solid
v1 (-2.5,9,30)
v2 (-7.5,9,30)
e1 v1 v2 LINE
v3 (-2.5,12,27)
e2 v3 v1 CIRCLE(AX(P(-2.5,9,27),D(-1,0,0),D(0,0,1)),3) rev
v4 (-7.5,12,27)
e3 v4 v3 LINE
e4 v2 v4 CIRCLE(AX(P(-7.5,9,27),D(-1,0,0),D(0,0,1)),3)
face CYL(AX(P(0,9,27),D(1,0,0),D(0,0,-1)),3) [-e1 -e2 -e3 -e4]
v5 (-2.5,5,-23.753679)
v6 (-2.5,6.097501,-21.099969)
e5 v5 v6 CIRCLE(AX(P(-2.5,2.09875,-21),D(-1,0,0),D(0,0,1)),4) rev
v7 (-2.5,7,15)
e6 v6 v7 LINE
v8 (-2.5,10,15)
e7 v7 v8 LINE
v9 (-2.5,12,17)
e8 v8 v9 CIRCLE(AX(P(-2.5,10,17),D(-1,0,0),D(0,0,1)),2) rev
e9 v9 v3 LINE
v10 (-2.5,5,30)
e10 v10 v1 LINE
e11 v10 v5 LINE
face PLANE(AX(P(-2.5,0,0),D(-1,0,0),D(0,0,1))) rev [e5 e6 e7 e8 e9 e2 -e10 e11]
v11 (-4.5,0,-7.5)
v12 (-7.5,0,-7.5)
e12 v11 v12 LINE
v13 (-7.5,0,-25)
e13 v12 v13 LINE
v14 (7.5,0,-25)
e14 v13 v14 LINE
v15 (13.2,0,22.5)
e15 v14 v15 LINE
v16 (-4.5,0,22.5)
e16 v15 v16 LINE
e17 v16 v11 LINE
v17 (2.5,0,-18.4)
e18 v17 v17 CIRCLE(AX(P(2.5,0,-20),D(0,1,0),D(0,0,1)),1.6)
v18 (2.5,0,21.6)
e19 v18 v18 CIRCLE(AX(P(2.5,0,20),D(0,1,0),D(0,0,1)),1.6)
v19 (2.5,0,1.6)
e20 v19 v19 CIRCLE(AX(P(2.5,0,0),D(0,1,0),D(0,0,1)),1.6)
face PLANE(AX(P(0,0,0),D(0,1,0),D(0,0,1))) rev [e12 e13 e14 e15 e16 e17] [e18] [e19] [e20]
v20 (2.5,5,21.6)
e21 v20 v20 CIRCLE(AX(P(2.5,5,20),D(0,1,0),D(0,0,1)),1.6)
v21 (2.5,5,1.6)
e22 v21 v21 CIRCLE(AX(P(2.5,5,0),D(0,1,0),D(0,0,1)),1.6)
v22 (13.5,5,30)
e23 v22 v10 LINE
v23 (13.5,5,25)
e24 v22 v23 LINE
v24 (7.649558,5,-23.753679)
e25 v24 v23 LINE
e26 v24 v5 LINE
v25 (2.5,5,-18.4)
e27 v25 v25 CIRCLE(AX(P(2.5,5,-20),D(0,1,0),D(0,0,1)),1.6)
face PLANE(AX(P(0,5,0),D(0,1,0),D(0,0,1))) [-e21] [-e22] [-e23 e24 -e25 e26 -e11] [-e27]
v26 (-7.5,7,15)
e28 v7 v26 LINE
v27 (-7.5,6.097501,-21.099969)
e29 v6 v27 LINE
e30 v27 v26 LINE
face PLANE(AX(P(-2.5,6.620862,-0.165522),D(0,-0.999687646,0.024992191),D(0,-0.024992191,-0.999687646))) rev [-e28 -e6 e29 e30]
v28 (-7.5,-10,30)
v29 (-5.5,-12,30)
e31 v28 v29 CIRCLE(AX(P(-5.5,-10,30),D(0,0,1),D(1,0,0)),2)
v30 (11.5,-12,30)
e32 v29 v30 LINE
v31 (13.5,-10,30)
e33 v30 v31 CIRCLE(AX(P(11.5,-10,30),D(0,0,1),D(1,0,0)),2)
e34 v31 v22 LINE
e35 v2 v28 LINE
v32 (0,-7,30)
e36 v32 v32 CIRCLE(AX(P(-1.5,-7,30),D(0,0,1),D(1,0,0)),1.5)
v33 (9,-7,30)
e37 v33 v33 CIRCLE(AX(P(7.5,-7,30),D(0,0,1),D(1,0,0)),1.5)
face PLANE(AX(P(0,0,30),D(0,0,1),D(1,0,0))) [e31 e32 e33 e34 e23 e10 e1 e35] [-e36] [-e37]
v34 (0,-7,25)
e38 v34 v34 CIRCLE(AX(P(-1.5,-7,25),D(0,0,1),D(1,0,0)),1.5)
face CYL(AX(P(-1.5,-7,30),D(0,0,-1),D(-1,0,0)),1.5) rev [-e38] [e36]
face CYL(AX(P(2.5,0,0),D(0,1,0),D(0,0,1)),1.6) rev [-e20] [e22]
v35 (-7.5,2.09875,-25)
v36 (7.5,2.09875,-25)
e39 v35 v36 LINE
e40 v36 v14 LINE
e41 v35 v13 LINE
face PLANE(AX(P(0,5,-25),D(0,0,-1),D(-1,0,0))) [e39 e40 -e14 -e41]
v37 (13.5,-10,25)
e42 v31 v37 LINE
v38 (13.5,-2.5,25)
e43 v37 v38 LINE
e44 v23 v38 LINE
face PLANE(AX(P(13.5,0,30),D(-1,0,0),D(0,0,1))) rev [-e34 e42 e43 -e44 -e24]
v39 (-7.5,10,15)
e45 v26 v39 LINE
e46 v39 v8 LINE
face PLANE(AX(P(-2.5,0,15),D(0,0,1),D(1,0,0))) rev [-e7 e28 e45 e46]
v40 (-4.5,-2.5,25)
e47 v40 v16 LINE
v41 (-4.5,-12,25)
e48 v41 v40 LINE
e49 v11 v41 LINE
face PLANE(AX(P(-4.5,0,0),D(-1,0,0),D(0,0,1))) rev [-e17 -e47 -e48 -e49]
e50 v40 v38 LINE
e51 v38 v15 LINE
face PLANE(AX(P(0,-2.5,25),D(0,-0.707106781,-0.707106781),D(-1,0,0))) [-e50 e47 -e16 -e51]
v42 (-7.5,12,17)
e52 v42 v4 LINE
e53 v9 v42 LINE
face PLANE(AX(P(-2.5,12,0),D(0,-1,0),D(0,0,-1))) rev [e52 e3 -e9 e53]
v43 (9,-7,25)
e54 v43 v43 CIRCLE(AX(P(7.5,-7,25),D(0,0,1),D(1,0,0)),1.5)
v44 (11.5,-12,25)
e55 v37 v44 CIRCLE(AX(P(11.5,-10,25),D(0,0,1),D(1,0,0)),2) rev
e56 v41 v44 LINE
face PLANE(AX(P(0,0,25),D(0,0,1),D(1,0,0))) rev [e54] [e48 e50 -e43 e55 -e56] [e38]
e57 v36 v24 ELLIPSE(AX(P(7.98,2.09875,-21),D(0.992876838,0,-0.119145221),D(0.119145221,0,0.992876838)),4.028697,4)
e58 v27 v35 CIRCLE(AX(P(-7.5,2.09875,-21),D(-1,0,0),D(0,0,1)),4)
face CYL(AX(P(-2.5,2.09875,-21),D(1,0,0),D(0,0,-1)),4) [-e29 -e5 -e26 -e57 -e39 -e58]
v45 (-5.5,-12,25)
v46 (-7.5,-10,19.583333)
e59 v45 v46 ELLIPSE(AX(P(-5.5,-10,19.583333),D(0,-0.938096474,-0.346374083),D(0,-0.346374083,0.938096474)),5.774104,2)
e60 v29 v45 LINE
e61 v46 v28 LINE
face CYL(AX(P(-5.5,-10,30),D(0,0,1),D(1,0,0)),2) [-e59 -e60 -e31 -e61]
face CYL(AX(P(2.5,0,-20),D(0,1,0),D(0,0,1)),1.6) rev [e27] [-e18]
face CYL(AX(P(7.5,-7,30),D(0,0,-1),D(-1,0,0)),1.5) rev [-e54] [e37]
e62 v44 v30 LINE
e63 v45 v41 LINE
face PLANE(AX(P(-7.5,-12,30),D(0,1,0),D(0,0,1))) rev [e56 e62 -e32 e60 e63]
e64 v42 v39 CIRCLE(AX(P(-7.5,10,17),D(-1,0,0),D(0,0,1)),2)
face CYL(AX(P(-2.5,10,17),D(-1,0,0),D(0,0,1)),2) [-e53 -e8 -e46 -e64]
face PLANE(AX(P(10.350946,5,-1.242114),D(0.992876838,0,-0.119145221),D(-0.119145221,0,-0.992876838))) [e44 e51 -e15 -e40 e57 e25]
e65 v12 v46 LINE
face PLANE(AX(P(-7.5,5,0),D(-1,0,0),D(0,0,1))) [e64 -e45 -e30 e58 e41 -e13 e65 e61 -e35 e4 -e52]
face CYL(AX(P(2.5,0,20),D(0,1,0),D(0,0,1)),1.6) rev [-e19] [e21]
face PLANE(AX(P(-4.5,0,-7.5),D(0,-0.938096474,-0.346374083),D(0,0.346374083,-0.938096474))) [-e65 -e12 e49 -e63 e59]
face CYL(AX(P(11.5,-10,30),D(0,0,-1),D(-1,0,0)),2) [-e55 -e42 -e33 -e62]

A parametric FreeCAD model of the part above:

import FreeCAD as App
import Part
import Sketcher
from FreeCAD import Vector
Q = App.Units.Quantity


def edges_at(feature, points):
    """Names of the edges that pass closest to the given points."""
    edges = feature.Shape.Edges
    near = lambda p: min(range(len(edges)), key=lambda i: edges[i].distToShape(Part.Vertex(*p))[0])
    return sorted({f"Edge{near(p) + 1}" for p in points})

doc = App.newDocument("Part")
params = doc.addObject("Spreadsheet::Sheet", "Params")
for row, (alias, value) in enumerate([
    ("sketch1_width", "21 mm"),
    ("sketch1_width2", "15 mm"),
    ("sketch1_height", "50 mm"),
    ("pad1_length", "5 mm"),
    ("sketch2_width", "1 mm"),
    ("sketch2_width2", "7 mm"),
    ("sketch2_width3", "5 mm"),
    ("sketch2_height", "50 mm"),
    ("sketch2_height2", "10 mm"),
    ("pad2_length", "5 mm"),
    ("fillet_radius", "4 mm"),
    ("fillet2_radius", "2 mm"),
    ("sketch3_diameter", "3.2 mm"),
    ("pocket1_length", "5 mm"),
    ("sketch4_diameter", "3 mm"),
    ("sketch4_width", "16 mm"),
    ("sketch4_width2", "5 mm"),
    ("sketch4_height", "7 mm"),
    ("sketch4_height2", "24 mm"),
    ("pad3_length", "5 mm"),
    ("chamfer_size", "2.5 mm"),
    ("fillet3_radius", "3 mm"),
    ("sketch5_height", "30 mm"),
    ("sketch5_width", "9.5 mm"),
    ("pad4_length", "3 mm"),
    ("fillet4_radius", "2 mm"),
], start=1):
    params.set(f"A{row}", alias)
    params.set(f"B{row}", "=" + value)
    params.setAlias(f"B{row}", alias)

body = doc.addObject("PartDesign::Body", "Body")

# Sketch on XZ plane
sketch1 = body.newObject("Sketcher::SketchObject", "Sketch")
sketch1.AttachmentSupport = (doc.getObject("XZ_Plane"), [""])
sketch1.MapMode = "FlatFace"
sketch1.addGeometry(Part.LineSegment(Vector(-7.5, -25, 0), Vector(-7.5, 25, 0)), False)
sketch1.addGeometry(Part.LineSegment(Vector(-7.5, 25, 0), Vector(13.5, 25, 0)), False)
sketch1.addGeometry(Part.LineSegment(Vector(13.5, 25, 0), Vector(7.5, -25, 0)), False)
sketch1.addGeometry(Part.LineSegment(Vector(7.5, -25, 0), Vector(-7.5, -25, 0)), False)
sketch1.addConstraint(Sketcher.Constraint("Coincident", 0, 2, 1, 1))
sketch1.addConstraint(Sketcher.Constraint("Coincident", 1, 2, 2, 1))
sketch1.addConstraint(Sketcher.Constraint("Coincident", 2, 2, 3, 1))
sketch1.addConstraint(Sketcher.Constraint("Coincident", 3, 2, 0, 1))
sketch1.addConstraint(Sketcher.Constraint("Vertical", 0))
sketch1.addConstraint(Sketcher.Constraint("Horizontal", 1))
sketch1.addConstraint(Sketcher.Constraint("Horizontal", 3))
sketch1.addConstraint(Sketcher.Constraint("Symmetric", 0, 2, 2, 2, -1, 1))
sketch1.addConstraint(Sketcher.Constraint("DistanceX", 1, 1, 1, 2, 21.0))
sketch1.addConstraint(Sketcher.Constraint("DistanceX", 3, 2, 3, 1, 15.0))
sketch1.addConstraint(Sketcher.Constraint("DistanceY", 0, 1, 0, 2, 50.0))
sketch1.setExpression("Constraints[8]", "Params.sketch1_width")
sketch1.setExpression("Constraints[9]", "Params.sketch1_width2")
sketch1.setExpression("Constraints[10]", "Params.sketch1_height")
pad1 = body.newObject("PartDesign::Pad", "Pad")
pad1.Profile = sketch1
pad1.setExpression("Length", "Params.pad1_length")
pad1.Reversed = True

# Sketch on YZ plane
sketch2 = body.newObject("Sketcher::SketchObject", "Sketch001")
sketch2.AttachmentSupport = (doc.getObject("YZ_Plane"), [""])
sketch2.MapMode = "FlatFace"
sketch2.AttachmentOffset = App.Placement(Vector(0, 0, -7.5), App.Rotation())
sketch2.addGeometry(Part.LineSegment(Vector(6, -25, 0), Vector(5, -25, 0)), False)
sketch2.addGeometry(Part.LineSegment(Vector(5, -25, 0), Vector(5, 25, 0)), False)
sketch2.addGeometry(Part.LineSegment(Vector(5, 25, 0), Vector(12, 25, 0)), False)
sketch2.addGeometry(Part.LineSegment(Vector(12, 25, 0), Vector(12, 15, 0)), False)
sketch2.addGeometry(Part.LineSegment(Vector(12, 15, 0), Vector(7, 15, 0)), False)
sketch2.addGeometry(Part.LineSegment(Vector(7, 15, 0), Vector(6, -25, 0)), False)
sketch2.addConstraint(Sketcher.Constraint("Coincident", 0, 2, 1, 1))
sketch2.addConstraint(Sketcher.Constraint("Coincident", 1, 2, 2, 1))
sketch2.addConstraint(Sketcher.Constraint("Coincident", 2, 2, 3, 1))
sketch2.addConstraint(Sketcher.Constraint("Coincident", 3, 2, 4, 1))
sketch2.addConstraint(Sketcher.Constraint("Coincident", 4, 2, 5, 1))
sketch2.addConstraint(Sketcher.Constraint("Coincident", 5, 2, 0, 1))
sketch2.addConstraint(Sketcher.Constraint("Horizontal", 0))
sketch2.addConstraint(Sketcher.Constraint("Vertical", 1))
sketch2.addConstraint(Sketcher.Constraint("Horizontal", 2))
sketch2.addConstraint(Sketcher.Constraint("Vertical", 3))
sketch2.addConstraint(Sketcher.Constraint("Horizontal", 4))
sketch2.addConstraint(Sketcher.Constraint("DistanceX", 0, 2, 0, 1, 1.0))
sketch2.addConstraint(Sketcher.Constraint("DistanceX", 2, 1, 2, 2, 7.0))
sketch2.addConstraint(Sketcher.Constraint("DistanceX", 4, 2, 4, 1, 5.0))
sketch2.addConstraint(Sketcher.Constraint("DistanceY", 1, 1, 1, 2, 50.0))
sketch2.addConstraint(Sketcher.Constraint("DistanceY", 3, 2, 3, 1, 10.0))
sketch2.addConstraint(Sketcher.Constraint("DistanceX", -1, 1, 0, 2, 5.0))
sketch2.addConstraint(Sketcher.Constraint("DistanceY", 0, 2, -1, 1, 25.0))
sketch2.setExpression("Constraints[11]", "Params.sketch2_width")
sketch2.setExpression("Constraints[12]", "Params.sketch2_width2")
sketch2.setExpression("Constraints[13]", "Params.sketch2_width3")
sketch2.setExpression("Constraints[14]", "Params.sketch2_height")
sketch2.setExpression("Constraints[15]", "Params.sketch2_height2")
pad2 = body.newObject("PartDesign::Pad", "Pad001")
pad2.Profile = sketch2
pad2.setExpression("Length", "Params.pad2_length")
doc.recompute()

fillet = body.newObject("PartDesign::Fillet", "Fillet")
fillet.Base = (pad2, edges_at(pad2, [(-5, 6, -25)]))
fillet.setExpression("Radius", "Params.fillet_radius")
doc.recompute()

fillet2 = body.newObject("PartDesign::Fillet", "Fillet001")
fillet2.Base = (fillet, edges_at(fillet, [(-5, 12, 15)]))
fillet2.setExpression("Radius", "Params.fillet2_radius")

# Sketch on XZ plane
sketch3 = body.newObject("Sketcher::SketchObject", "Sketch002")
sketch3.AttachmentSupport = (doc.getObject("XZ_Plane"), [""])
sketch3.MapMode = "FlatFace"
sketch3.AttachmentOffset = App.Placement(Vector(0, 0, -5), App.Rotation())
sketch3.addGeometry(Part.Circle(Vector(2.5, -20, 0), Vector(0, 0, 1), 1.6), False)
sketch3.addGeometry(Part.Circle(Vector(2.5, 0, 0), Vector(0, 0, 1), 1.6), False)
sketch3.addGeometry(Part.Circle(Vector(2.5, 20, 0), Vector(0, 0, 1), 1.6), False)
sketch3.addConstraint(Sketcher.Constraint("Equal", 0, 1))
sketch3.addConstraint(Sketcher.Constraint("Equal", 1, 2))
sketch3.addConstraint(Sketcher.Constraint("Symmetric", 0, 3, 2, 3, -1))
sketch3.addConstraint(Sketcher.Constraint("PointOnObject", 1, 3, -1))
sketch3.addConstraint(Sketcher.Constraint("Vertical", 0, 3, 1, 3))
sketch3.addConstraint(Sketcher.Constraint("Diameter", 0, 3.2))
sketch3.addConstraint(Sketcher.Constraint("DistanceY", 0, 3, -1, 1, 20.0))
sketch3.addConstraint(Sketcher.Constraint("DistanceX", -1, 1, 0, 3, 2.5))
sketch3.setExpression("Constraints[5]", "Params.sketch3_diameter")
pocket1 = body.newObject("PartDesign::Pocket", "Pocket")
pocket1.Profile = sketch3
pocket1.setExpression("Length", "Params.pocket1_length")
pocket1.Reversed = True

# Sketch on XY plane
sketch4 = body.newObject("Sketcher::SketchObject", "Sketch003")
sketch4.AttachmentSupport = (doc.getObject("XY_Plane"), [""])
sketch4.MapMode = "FlatFace"
sketch4.AttachmentOffset = App.Placement(Vector(0, 0, 25), App.Rotation())
sketch4.addGeometry(Part.LineSegment(Vector(13.5, 5, 0), Vector(-2.5, 5, 0)), False)
sketch4.addGeometry(Part.LineSegment(Vector(-2.5, 5, 0), Vector(-2.5, 12, 0)), False)
sketch4.addGeometry(Part.LineSegment(Vector(-2.5, 12, 0), Vector(-7.5, 12, 0)), False)
sketch4.addGeometry(Part.LineSegment(Vector(-7.5, 12, 0), Vector(-7.5, -12, 0)), False)
sketch4.addGeometry(Part.LineSegment(Vector(-7.5, -12, 0), Vector(13.5, -12, 0)), False)
sketch4.addGeometry(Part.LineSegment(Vector(13.5, -12, 0), Vector(13.5, 5, 0)), False)
sketch4.addGeometry(Part.Circle(Vector(-1.5, -7, 0), Vector(0, 0, 1), 1.5), False)
sketch4.addGeometry(Part.Circle(Vector(7.5, -7, 0), Vector(0, 0, 1), 1.5), False)
sketch4.addConstraint(Sketcher.Constraint("Coincident", 0, 2, 1, 1))
sketch4.addConstraint(Sketcher.Constraint("Coincident", 1, 2, 2, 1))
sketch4.addConstraint(Sketcher.Constraint("Coincident", 2, 2, 3, 1))
sketch4.addConstraint(Sketcher.Constraint("Coincident", 3, 2, 4, 1))
sketch4.addConstraint(Sketcher.Constraint("Coincident", 4, 2, 5, 1))
sketch4.addConstraint(Sketcher.Constraint("Coincident", 5, 2, 0, 1))
sketch4.addConstraint(Sketcher.Constraint("Horizontal", 0))
sketch4.addConstraint(Sketcher.Constraint("Vertical", 1))
sketch4.addConstraint(Sketcher.Constraint("Horizontal", 2))
sketch4.addConstraint(Sketcher.Constraint("Vertical", 3))
sketch4.addConstraint(Sketcher.Constraint("Horizontal", 4))
sketch4.addConstraint(Sketcher.Constraint("Vertical", 5))
sketch4.addConstraint(Sketcher.Constraint("Equal", 6, 7))
sketch4.addConstraint(Sketcher.Constraint("Horizontal", 6, 3, 7, 3))
sketch4.addConstraint(Sketcher.Constraint("Diameter", 6, 3.0))
sketch4.addConstraint(Sketcher.Constraint("DistanceX", 0, 2, 0, 1, 16.0))
sketch4.addConstraint(Sketcher.Constraint("DistanceX", 2, 2, 2, 1, 5.0))
sketch4.addConstraint(Sketcher.Constraint("DistanceY", 1, 1, 1, 2, 7.0))
sketch4.addConstraint(Sketcher.Constraint("DistanceY", 3, 2, 3, 1, 24.0))
sketch4.addConstraint(Sketcher.Constraint("DistanceY", 6, 3, -1, 1, 7.0))
sketch4.addConstraint(Sketcher.Constraint("DistanceY", -1, 1, 0, 2, 5.0))
sketch4.addConstraint(Sketcher.Constraint("DistanceX", 6, 3, 7, 3, 9.0))
sketch4.addConstraint(Sketcher.Constraint("DistanceX", 0, 2, 6, 3, 1.0))
sketch4.addConstraint(Sketcher.Constraint("DistanceX", 6, 3, -1, 1, 1.5))
sketch4.setExpression("Constraints[14]", "Params.sketch4_diameter")
sketch4.setExpression("Constraints[15]", "Params.sketch4_width")
sketch4.setExpression("Constraints[16]", "Params.sketch4_width2")
sketch4.setExpression("Constraints[17]", "Params.sketch4_height")
sketch4.setExpression("Constraints[18]", "Params.sketch4_height2")
pad3 = body.newObject("PartDesign::Pad", "Pad002")
pad3.Profile = sketch4
pad3.setExpression("Length", "Params.pad3_length")
doc.recompute()

chamfer = body.newObject("PartDesign::Chamfer", "Chamfer")
chamfer.Base = (pad3, edges_at(pad3, [(3, 0, 25)]))
chamfer.setExpression("Size", "Params.chamfer_size")
doc.recompute()

fillet3 = body.newObject("PartDesign::Fillet", "Fillet002")
fillet3.Base = (chamfer, edges_at(chamfer, [(-5, 12, 30)]))
fillet3.setExpression("Radius", "Params.fillet3_radius")

# Sketch on YZ plane
sketch5 = body.newObject("Sketcher::SketchObject", "Sketch004")
sketch5.AttachmentSupport = (doc.getObject("YZ_Plane"), [""])
sketch5.MapMode = "FlatFace"
sketch5.AttachmentOffset = App.Placement(Vector(0, 0, -7.5), App.Rotation())
sketch5.addGeometry(Part.LineSegment(Vector(-12, 25, 0), Vector(-2.5, 25, 0)), False)
sketch5.addGeometry(Part.LineSegment(Vector(-2.5, 25, 0), Vector(0, 22.5, 0)), False)
sketch5.addGeometry(Part.LineSegment(Vector(0, 22.5, 0), Vector(0, -7.5, 0)), False)
sketch5.addGeometry(Part.LineSegment(Vector(0, -7.5, 0), Vector(-12, 25, 0)), False)
sketch5.addConstraint(Sketcher.Constraint("Coincident", 0, 2, 1, 1))
sketch5.addConstraint(Sketcher.Constraint("Coincident", 1, 2, 2, 1))
sketch5.addConstraint(Sketcher.Constraint("Coincident", 2, 2, 3, 1))
sketch5.addConstraint(Sketcher.Constraint("Coincident", 3, 2, 0, 1))
sketch5.addConstraint(Sketcher.Constraint("Horizontal", 0))
sketch5.addConstraint(Sketcher.Constraint("Vertical", 2))
sketch5.addConstraint(Sketcher.Constraint("PointOnObject", 1, 2, -2))
sketch5.addConstraint(Sketcher.Constraint("DistanceY", 2, 2, 2, 1, 30.0))
sketch5.addConstraint(Sketcher.Constraint("Angle", 1, Q("-45 deg")))
sketch5.addConstraint(Sketcher.Constraint("DistanceX", 0, 1, 0, 2, 9.5))
sketch5.addConstraint(Sketcher.Constraint("DistanceY", -1, 1, 0, 2, 25.0))
sketch5.addConstraint(Sketcher.Constraint("DistanceX", 3, 2, -1, 1, 12.0))
sketch5.setExpression("Constraints[7]", "Params.sketch5_height")
sketch5.setExpression("Constraints[9]", "Params.sketch5_width")
pad4 = body.newObject("PartDesign::Pad", "Pad003")
pad4.Profile = sketch5
pad4.setExpression("Length", "Params.pad4_length")
doc.recompute()

fillet4 = body.newObject("PartDesign::Fillet", "Fillet003")
fillet4.Base = (pad4, edges_at(pad4, [(13.5, -12, 27.5), (-7.5, -12, 27.5)]))
fillet4.setExpression("Radius", "Params.fillet4_radius")

doc.recompute()
